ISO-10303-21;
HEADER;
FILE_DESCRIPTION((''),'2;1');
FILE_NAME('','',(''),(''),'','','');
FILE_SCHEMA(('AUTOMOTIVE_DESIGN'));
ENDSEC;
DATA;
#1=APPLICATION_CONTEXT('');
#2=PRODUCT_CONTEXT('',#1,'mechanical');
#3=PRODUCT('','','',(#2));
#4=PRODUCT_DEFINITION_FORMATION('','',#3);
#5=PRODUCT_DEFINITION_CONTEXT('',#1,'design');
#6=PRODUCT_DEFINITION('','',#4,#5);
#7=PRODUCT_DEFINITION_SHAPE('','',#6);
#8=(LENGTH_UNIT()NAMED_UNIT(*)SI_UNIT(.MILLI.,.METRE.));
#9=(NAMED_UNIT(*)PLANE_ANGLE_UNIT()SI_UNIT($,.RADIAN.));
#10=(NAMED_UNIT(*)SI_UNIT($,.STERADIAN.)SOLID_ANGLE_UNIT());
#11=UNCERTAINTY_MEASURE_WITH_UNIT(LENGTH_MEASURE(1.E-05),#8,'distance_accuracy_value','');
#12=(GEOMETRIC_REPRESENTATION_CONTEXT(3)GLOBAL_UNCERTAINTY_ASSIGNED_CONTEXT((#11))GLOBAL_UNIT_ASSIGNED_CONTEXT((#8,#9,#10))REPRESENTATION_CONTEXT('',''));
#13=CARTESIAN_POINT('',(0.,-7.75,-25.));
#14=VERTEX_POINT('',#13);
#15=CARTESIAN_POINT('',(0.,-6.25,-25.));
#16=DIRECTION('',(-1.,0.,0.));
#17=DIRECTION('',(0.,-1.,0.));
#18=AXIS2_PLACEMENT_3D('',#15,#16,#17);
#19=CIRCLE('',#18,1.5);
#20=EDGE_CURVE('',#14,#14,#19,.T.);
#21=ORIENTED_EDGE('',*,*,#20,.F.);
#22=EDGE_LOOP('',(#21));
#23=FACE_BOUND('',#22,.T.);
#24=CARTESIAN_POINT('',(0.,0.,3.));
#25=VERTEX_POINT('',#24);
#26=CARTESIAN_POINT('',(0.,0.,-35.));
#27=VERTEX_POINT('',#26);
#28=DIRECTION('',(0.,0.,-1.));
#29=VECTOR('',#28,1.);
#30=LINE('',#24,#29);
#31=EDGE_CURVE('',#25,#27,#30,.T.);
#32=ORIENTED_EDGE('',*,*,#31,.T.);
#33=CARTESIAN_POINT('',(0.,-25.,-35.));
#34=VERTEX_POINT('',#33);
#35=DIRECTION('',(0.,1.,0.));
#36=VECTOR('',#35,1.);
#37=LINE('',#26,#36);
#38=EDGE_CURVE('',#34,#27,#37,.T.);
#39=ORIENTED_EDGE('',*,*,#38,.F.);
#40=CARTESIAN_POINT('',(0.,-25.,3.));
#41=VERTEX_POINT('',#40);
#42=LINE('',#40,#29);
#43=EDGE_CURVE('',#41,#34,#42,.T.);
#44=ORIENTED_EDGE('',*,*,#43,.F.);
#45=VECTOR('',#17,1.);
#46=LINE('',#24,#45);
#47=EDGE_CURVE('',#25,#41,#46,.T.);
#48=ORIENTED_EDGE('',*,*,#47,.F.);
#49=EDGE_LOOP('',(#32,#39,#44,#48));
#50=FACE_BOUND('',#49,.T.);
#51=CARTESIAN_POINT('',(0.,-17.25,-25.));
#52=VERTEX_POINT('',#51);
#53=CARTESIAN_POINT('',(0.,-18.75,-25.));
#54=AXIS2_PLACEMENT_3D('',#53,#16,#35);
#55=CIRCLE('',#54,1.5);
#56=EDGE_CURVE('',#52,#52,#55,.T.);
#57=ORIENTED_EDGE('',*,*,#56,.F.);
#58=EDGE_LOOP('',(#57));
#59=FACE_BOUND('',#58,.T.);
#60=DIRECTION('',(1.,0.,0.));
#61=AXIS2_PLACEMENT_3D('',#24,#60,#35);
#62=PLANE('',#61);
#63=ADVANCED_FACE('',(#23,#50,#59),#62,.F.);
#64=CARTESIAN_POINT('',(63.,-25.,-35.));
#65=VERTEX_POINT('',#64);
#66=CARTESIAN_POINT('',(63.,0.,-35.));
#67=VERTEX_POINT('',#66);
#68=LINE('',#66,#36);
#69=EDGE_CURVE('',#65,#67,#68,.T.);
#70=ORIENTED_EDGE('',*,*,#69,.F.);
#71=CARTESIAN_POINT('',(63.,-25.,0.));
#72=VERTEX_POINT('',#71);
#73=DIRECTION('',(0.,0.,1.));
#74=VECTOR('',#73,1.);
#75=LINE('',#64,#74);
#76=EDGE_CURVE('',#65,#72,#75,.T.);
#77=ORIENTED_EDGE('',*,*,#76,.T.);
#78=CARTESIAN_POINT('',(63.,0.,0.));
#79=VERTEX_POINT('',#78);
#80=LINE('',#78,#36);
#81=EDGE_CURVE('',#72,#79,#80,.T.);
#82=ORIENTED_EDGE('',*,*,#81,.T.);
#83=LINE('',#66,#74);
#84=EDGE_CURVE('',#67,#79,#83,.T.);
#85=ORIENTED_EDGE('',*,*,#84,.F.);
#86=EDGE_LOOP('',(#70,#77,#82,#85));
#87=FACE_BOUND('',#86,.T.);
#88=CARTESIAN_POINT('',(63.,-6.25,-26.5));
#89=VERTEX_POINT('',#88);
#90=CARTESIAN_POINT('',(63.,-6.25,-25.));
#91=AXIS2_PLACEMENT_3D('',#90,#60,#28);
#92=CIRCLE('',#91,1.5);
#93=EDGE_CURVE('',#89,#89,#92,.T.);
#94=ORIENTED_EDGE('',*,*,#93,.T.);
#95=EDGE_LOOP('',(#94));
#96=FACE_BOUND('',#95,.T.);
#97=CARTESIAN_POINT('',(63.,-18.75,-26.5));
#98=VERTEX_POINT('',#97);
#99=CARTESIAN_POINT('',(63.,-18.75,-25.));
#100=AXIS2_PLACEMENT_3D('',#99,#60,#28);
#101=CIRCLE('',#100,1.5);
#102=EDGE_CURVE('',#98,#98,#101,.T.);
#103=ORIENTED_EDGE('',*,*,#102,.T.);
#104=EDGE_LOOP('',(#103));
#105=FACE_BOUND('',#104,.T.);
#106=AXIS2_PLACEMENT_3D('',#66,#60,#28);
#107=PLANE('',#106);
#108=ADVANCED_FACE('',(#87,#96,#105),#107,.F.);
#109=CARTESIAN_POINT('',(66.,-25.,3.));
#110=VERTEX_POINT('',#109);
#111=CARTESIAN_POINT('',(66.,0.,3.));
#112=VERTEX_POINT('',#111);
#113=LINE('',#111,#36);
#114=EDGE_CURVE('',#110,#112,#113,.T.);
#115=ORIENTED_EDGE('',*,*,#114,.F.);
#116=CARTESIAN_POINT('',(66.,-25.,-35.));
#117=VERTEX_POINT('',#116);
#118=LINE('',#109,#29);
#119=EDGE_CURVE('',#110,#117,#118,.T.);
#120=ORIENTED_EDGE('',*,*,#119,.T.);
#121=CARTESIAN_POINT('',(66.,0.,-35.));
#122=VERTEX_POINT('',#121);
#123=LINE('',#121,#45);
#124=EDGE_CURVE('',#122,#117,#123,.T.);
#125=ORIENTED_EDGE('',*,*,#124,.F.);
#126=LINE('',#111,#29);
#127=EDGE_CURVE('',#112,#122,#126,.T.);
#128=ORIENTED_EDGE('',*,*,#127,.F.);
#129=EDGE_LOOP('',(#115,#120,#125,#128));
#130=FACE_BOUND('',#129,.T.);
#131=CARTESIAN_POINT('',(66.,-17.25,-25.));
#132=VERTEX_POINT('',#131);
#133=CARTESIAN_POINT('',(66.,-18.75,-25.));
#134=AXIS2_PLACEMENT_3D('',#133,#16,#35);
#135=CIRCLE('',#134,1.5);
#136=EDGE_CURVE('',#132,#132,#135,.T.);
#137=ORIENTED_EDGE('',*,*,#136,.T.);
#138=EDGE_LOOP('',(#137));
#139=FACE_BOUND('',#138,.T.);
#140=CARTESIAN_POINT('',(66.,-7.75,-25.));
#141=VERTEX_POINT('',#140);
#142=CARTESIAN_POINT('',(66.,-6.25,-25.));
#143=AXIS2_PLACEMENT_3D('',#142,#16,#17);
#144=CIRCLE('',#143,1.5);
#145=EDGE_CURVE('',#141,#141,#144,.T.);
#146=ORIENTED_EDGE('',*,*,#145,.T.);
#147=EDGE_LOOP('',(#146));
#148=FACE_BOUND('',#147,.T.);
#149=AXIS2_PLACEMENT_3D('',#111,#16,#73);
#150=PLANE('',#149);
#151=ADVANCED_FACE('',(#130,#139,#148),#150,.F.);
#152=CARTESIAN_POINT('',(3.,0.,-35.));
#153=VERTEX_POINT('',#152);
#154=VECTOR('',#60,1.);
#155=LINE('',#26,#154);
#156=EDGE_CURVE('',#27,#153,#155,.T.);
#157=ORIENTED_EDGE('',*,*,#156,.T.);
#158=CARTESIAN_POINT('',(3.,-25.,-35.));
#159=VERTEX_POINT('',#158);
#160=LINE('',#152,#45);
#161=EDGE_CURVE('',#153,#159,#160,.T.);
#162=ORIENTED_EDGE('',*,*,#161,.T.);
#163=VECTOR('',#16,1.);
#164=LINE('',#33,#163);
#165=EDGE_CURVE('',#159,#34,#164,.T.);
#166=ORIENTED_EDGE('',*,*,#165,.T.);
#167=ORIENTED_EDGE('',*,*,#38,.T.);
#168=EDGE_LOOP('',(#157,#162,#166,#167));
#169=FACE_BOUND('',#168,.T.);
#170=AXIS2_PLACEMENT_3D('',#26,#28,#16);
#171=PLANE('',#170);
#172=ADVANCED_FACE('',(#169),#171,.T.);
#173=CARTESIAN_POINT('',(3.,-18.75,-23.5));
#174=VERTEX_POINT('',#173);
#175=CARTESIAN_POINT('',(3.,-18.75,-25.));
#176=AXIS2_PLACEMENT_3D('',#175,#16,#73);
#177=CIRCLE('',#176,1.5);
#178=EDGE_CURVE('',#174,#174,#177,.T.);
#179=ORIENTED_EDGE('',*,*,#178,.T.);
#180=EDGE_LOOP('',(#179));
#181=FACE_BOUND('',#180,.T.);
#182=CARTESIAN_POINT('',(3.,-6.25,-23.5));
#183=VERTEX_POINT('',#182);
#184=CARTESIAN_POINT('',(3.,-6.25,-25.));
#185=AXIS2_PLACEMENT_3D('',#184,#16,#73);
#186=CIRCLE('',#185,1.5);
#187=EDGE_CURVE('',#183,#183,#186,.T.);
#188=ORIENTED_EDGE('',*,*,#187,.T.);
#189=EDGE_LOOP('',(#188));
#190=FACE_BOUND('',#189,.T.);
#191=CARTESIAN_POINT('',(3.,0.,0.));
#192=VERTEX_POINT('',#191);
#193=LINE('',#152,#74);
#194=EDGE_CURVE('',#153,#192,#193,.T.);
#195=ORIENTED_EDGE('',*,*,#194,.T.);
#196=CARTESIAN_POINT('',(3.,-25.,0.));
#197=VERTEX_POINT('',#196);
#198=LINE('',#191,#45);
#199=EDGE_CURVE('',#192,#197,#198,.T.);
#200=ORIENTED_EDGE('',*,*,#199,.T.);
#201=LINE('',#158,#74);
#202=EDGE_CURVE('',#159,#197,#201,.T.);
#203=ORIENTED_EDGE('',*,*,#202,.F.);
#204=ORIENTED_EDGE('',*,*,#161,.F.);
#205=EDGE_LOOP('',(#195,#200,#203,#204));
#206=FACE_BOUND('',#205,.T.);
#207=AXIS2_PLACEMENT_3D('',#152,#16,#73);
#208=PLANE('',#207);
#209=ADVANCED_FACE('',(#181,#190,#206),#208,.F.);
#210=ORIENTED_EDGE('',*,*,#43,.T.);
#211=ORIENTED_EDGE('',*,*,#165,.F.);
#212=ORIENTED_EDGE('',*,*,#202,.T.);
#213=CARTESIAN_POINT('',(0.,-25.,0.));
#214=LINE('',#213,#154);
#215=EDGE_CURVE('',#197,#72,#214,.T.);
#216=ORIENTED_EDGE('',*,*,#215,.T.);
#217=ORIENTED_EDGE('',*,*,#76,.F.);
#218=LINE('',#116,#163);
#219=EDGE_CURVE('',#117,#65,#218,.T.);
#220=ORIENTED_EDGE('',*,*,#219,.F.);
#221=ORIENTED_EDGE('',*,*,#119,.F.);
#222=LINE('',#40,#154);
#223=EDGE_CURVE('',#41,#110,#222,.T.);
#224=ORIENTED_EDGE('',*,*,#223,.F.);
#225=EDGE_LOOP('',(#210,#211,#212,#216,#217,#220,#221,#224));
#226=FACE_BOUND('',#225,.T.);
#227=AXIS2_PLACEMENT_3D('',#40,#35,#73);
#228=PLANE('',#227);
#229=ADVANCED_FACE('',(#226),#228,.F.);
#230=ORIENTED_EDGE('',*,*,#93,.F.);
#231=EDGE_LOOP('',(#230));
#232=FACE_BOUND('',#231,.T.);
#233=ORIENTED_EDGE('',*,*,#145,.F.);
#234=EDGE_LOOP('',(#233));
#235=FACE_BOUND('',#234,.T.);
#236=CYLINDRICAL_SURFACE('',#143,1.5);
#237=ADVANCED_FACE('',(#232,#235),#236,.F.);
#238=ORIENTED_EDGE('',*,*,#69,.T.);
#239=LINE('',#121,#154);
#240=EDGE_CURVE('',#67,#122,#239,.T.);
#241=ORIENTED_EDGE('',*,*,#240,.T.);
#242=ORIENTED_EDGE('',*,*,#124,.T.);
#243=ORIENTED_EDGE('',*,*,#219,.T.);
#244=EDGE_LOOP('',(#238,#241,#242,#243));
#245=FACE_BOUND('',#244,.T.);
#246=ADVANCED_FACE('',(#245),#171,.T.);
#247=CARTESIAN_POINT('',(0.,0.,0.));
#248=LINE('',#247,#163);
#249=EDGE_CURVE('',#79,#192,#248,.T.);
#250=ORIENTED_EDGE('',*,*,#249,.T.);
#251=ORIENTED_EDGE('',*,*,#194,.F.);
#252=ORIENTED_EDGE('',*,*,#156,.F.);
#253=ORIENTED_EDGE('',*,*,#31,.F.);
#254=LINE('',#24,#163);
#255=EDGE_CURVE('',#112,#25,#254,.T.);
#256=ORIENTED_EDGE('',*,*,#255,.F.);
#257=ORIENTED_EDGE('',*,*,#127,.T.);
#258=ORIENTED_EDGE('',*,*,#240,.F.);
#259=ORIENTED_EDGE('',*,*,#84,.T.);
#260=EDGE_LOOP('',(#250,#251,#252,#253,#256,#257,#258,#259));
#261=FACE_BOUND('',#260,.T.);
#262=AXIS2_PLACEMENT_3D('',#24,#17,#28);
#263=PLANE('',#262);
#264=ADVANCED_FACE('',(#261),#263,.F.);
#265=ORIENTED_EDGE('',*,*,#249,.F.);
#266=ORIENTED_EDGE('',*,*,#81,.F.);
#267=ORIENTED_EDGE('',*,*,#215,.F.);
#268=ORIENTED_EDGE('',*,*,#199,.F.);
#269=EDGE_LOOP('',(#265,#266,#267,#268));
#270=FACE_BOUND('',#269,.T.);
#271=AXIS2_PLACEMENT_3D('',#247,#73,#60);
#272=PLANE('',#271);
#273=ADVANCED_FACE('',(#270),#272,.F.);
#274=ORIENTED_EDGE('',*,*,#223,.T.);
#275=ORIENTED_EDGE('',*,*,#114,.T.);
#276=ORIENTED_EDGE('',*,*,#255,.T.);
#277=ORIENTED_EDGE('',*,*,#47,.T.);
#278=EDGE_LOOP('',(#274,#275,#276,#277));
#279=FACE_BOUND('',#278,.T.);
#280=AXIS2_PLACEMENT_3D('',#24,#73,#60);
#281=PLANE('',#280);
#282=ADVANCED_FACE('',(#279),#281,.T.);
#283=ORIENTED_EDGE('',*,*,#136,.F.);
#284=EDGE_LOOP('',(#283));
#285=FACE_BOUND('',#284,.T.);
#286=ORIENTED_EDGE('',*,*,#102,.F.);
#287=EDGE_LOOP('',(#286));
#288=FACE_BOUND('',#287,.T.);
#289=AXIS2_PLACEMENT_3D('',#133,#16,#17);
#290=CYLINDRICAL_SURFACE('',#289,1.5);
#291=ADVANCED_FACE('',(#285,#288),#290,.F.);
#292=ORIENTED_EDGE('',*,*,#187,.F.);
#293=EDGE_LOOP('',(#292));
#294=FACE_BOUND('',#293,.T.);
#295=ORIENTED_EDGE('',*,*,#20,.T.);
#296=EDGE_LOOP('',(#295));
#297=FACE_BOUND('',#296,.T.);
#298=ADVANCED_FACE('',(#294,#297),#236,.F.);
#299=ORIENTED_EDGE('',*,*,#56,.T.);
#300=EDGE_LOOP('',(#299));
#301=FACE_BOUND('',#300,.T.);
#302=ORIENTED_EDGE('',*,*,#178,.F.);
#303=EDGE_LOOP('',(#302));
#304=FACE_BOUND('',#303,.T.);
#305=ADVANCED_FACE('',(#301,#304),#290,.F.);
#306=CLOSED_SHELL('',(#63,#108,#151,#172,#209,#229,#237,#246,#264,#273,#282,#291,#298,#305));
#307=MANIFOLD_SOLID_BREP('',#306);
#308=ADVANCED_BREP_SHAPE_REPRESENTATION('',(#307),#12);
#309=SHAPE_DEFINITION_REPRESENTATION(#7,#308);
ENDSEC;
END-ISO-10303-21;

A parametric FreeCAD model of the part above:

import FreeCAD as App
import Part
import Sketcher
from FreeCAD import Vector
Q = App.Units.Quantity


def add_polygon(sketch, points):
    """Adds a closed chain of lines whose ends are joined by coincident constraints."""
    first, n = sketch.GeometryCount, len(points)
    for a, b in zip(points, points[1:] + points[:1]):
        sketch.addGeometry(Part.LineSegment(App.Vector(*a, 0), App.Vector(*b, 0)), False)
    for i in range(n):
        sketch.addConstraint(Sketcher.Constraint("Coincident", first + i, 2, first + (i + 1) % n, 1))

doc = App.newDocument("Part")
body = doc.addObject("PartDesign::Body", "Body")

sketch1 = body.newObject("Sketcher::SketchObject", "Sketch")
sketch1.AttachmentSupport = (doc.getObject("XY_Plane"), [""])
sketch1.MapMode = "FlatFace"
add_polygon(sketch1, [(0, 0), (0, -25), (66, -25), (66, 0)])
sketch1.addConstraint(Sketcher.Constraint("Vertical", 0))
sketch1.addConstraint(Sketcher.Constraint("Horizontal", 1))
sketch1.addConstraint(Sketcher.Constraint("Vertical", 2))
sketch1.addConstraint(Sketcher.Constraint("Horizontal", 3))
sketch1.addConstraint(Sketcher.Constraint("Coincident", 3, 2, -1, 1))
sketch1.addConstraint(Sketcher.Constraint("DistanceX", 1, 1, 1, 2, Q("66 mm")))
sketch1.addConstraint(Sketcher.Constraint("DistanceY", 0, 2, 0, 1, Q("25 mm")))
pad1 = body.newObject("PartDesign::Pad", "Pad")
pad1.Profile = sketch1
pad1.Length = 3

sketch2 = body.newObject("Sketcher::SketchObject", "Sketch001")
sketch2.AttachmentSupport = (doc.getObject("XY_Plane"), [""])
sketch2.MapMode = "FlatFace"
add_polygon(sketch2, [(3, 0), (3, -25), (0, -25), (0, 0)])
add_polygon(sketch2, [(66, 0), (66, -25), (63, -25), (63, 0)])
sketch2.addConstraint(Sketcher.Constraint("Vertical", 0))
sketch2.addConstraint(Sketcher.Constraint("Horizontal", 1))
sketch2.addConstraint(Sketcher.Constraint("Vertical", 2))
sketch2.addConstraint(Sketcher.Constraint("Horizontal", 3))
sketch2.addConstraint(Sketcher.Constraint("Vertical", 4))
sketch2.addConstraint(Sketcher.Constraint("Horizontal", 5))
sketch2.addConstraint(Sketcher.Constraint("Vertical", 6))
sketch2.addConstraint(Sketcher.Constraint("Horizontal", 7))
sketch2.addConstraint(Sketcher.Constraint("Coincident", 2, 2, -1, 1))
sketch2.addConstraint(Sketcher.Constraint("PointOnObject", 6, 2, -1))
sketch2.addConstraint(Sketcher.Constraint("Horizontal", 1, 2, 4, 2))
sketch2.addConstraint(Sketcher.Constraint("Equal", 3, 5))
sketch2.addConstraint(Sketcher.Constraint("DistanceX", 1, 2, 1, 1, Q("3 mm")))
sketch2.addConstraint(Sketcher.Constraint("DistanceY", 0, 2, 0, 1, Q("25 mm")))
sketch2.addConstraint(Sketcher.Constraint("DistanceX", -1, 1, 4, 2, Q("66 mm")))
pad2 = body.newObject("PartDesign::Pad", "Pad001")
pad2.Profile = sketch2
pad2.Length = 35
pad2.Reversed = True

sketch3 = body.newObject("Sketcher::SketchObject", "Sketch002")
sketch3.AttachmentSupport = (doc.getObject("YZ_Plane"), [""])
sketch3.MapMode = "FlatFace"
sketch3.addGeometry(Part.Circle(Vector(-6.2, -25, 0), Vector(0, 0, 1), 1.5), False)
sketch3.addGeometry(Part.Circle(Vector(-18.8, -25, 0), Vector(0, 0, 1), 1.5), False)
sketch3.addConstraint(Sketcher.Constraint("Equal", 0, 1))
sketch3.addConstraint(Sketcher.Constraint("Horizontal", 0, 3, 1, 3))
sketch3.addConstraint(Sketcher.Constraint("Diameter", 0, Q("3 mm")))
sketch3.addConstraint(Sketcher.Constraint("DistanceY", 0, 3, -1, 1, Q("25 mm")))
sketch3.addConstraint(Sketcher.Constraint("DistanceX", 1, 3, 0, 3, Q("12.5 mm")))
sketch3.addConstraint(Sketcher.Constraint("DistanceX", 0, 3, -1, 1, Q("6.25 mm")))
pocket1 = body.newObject("PartDesign::Pocket", "Pocket")
pocket1.Profile = sketch3
pocket1.Type = "ThroughAll"
pocket1.Reversed = True

doc.recompute()
